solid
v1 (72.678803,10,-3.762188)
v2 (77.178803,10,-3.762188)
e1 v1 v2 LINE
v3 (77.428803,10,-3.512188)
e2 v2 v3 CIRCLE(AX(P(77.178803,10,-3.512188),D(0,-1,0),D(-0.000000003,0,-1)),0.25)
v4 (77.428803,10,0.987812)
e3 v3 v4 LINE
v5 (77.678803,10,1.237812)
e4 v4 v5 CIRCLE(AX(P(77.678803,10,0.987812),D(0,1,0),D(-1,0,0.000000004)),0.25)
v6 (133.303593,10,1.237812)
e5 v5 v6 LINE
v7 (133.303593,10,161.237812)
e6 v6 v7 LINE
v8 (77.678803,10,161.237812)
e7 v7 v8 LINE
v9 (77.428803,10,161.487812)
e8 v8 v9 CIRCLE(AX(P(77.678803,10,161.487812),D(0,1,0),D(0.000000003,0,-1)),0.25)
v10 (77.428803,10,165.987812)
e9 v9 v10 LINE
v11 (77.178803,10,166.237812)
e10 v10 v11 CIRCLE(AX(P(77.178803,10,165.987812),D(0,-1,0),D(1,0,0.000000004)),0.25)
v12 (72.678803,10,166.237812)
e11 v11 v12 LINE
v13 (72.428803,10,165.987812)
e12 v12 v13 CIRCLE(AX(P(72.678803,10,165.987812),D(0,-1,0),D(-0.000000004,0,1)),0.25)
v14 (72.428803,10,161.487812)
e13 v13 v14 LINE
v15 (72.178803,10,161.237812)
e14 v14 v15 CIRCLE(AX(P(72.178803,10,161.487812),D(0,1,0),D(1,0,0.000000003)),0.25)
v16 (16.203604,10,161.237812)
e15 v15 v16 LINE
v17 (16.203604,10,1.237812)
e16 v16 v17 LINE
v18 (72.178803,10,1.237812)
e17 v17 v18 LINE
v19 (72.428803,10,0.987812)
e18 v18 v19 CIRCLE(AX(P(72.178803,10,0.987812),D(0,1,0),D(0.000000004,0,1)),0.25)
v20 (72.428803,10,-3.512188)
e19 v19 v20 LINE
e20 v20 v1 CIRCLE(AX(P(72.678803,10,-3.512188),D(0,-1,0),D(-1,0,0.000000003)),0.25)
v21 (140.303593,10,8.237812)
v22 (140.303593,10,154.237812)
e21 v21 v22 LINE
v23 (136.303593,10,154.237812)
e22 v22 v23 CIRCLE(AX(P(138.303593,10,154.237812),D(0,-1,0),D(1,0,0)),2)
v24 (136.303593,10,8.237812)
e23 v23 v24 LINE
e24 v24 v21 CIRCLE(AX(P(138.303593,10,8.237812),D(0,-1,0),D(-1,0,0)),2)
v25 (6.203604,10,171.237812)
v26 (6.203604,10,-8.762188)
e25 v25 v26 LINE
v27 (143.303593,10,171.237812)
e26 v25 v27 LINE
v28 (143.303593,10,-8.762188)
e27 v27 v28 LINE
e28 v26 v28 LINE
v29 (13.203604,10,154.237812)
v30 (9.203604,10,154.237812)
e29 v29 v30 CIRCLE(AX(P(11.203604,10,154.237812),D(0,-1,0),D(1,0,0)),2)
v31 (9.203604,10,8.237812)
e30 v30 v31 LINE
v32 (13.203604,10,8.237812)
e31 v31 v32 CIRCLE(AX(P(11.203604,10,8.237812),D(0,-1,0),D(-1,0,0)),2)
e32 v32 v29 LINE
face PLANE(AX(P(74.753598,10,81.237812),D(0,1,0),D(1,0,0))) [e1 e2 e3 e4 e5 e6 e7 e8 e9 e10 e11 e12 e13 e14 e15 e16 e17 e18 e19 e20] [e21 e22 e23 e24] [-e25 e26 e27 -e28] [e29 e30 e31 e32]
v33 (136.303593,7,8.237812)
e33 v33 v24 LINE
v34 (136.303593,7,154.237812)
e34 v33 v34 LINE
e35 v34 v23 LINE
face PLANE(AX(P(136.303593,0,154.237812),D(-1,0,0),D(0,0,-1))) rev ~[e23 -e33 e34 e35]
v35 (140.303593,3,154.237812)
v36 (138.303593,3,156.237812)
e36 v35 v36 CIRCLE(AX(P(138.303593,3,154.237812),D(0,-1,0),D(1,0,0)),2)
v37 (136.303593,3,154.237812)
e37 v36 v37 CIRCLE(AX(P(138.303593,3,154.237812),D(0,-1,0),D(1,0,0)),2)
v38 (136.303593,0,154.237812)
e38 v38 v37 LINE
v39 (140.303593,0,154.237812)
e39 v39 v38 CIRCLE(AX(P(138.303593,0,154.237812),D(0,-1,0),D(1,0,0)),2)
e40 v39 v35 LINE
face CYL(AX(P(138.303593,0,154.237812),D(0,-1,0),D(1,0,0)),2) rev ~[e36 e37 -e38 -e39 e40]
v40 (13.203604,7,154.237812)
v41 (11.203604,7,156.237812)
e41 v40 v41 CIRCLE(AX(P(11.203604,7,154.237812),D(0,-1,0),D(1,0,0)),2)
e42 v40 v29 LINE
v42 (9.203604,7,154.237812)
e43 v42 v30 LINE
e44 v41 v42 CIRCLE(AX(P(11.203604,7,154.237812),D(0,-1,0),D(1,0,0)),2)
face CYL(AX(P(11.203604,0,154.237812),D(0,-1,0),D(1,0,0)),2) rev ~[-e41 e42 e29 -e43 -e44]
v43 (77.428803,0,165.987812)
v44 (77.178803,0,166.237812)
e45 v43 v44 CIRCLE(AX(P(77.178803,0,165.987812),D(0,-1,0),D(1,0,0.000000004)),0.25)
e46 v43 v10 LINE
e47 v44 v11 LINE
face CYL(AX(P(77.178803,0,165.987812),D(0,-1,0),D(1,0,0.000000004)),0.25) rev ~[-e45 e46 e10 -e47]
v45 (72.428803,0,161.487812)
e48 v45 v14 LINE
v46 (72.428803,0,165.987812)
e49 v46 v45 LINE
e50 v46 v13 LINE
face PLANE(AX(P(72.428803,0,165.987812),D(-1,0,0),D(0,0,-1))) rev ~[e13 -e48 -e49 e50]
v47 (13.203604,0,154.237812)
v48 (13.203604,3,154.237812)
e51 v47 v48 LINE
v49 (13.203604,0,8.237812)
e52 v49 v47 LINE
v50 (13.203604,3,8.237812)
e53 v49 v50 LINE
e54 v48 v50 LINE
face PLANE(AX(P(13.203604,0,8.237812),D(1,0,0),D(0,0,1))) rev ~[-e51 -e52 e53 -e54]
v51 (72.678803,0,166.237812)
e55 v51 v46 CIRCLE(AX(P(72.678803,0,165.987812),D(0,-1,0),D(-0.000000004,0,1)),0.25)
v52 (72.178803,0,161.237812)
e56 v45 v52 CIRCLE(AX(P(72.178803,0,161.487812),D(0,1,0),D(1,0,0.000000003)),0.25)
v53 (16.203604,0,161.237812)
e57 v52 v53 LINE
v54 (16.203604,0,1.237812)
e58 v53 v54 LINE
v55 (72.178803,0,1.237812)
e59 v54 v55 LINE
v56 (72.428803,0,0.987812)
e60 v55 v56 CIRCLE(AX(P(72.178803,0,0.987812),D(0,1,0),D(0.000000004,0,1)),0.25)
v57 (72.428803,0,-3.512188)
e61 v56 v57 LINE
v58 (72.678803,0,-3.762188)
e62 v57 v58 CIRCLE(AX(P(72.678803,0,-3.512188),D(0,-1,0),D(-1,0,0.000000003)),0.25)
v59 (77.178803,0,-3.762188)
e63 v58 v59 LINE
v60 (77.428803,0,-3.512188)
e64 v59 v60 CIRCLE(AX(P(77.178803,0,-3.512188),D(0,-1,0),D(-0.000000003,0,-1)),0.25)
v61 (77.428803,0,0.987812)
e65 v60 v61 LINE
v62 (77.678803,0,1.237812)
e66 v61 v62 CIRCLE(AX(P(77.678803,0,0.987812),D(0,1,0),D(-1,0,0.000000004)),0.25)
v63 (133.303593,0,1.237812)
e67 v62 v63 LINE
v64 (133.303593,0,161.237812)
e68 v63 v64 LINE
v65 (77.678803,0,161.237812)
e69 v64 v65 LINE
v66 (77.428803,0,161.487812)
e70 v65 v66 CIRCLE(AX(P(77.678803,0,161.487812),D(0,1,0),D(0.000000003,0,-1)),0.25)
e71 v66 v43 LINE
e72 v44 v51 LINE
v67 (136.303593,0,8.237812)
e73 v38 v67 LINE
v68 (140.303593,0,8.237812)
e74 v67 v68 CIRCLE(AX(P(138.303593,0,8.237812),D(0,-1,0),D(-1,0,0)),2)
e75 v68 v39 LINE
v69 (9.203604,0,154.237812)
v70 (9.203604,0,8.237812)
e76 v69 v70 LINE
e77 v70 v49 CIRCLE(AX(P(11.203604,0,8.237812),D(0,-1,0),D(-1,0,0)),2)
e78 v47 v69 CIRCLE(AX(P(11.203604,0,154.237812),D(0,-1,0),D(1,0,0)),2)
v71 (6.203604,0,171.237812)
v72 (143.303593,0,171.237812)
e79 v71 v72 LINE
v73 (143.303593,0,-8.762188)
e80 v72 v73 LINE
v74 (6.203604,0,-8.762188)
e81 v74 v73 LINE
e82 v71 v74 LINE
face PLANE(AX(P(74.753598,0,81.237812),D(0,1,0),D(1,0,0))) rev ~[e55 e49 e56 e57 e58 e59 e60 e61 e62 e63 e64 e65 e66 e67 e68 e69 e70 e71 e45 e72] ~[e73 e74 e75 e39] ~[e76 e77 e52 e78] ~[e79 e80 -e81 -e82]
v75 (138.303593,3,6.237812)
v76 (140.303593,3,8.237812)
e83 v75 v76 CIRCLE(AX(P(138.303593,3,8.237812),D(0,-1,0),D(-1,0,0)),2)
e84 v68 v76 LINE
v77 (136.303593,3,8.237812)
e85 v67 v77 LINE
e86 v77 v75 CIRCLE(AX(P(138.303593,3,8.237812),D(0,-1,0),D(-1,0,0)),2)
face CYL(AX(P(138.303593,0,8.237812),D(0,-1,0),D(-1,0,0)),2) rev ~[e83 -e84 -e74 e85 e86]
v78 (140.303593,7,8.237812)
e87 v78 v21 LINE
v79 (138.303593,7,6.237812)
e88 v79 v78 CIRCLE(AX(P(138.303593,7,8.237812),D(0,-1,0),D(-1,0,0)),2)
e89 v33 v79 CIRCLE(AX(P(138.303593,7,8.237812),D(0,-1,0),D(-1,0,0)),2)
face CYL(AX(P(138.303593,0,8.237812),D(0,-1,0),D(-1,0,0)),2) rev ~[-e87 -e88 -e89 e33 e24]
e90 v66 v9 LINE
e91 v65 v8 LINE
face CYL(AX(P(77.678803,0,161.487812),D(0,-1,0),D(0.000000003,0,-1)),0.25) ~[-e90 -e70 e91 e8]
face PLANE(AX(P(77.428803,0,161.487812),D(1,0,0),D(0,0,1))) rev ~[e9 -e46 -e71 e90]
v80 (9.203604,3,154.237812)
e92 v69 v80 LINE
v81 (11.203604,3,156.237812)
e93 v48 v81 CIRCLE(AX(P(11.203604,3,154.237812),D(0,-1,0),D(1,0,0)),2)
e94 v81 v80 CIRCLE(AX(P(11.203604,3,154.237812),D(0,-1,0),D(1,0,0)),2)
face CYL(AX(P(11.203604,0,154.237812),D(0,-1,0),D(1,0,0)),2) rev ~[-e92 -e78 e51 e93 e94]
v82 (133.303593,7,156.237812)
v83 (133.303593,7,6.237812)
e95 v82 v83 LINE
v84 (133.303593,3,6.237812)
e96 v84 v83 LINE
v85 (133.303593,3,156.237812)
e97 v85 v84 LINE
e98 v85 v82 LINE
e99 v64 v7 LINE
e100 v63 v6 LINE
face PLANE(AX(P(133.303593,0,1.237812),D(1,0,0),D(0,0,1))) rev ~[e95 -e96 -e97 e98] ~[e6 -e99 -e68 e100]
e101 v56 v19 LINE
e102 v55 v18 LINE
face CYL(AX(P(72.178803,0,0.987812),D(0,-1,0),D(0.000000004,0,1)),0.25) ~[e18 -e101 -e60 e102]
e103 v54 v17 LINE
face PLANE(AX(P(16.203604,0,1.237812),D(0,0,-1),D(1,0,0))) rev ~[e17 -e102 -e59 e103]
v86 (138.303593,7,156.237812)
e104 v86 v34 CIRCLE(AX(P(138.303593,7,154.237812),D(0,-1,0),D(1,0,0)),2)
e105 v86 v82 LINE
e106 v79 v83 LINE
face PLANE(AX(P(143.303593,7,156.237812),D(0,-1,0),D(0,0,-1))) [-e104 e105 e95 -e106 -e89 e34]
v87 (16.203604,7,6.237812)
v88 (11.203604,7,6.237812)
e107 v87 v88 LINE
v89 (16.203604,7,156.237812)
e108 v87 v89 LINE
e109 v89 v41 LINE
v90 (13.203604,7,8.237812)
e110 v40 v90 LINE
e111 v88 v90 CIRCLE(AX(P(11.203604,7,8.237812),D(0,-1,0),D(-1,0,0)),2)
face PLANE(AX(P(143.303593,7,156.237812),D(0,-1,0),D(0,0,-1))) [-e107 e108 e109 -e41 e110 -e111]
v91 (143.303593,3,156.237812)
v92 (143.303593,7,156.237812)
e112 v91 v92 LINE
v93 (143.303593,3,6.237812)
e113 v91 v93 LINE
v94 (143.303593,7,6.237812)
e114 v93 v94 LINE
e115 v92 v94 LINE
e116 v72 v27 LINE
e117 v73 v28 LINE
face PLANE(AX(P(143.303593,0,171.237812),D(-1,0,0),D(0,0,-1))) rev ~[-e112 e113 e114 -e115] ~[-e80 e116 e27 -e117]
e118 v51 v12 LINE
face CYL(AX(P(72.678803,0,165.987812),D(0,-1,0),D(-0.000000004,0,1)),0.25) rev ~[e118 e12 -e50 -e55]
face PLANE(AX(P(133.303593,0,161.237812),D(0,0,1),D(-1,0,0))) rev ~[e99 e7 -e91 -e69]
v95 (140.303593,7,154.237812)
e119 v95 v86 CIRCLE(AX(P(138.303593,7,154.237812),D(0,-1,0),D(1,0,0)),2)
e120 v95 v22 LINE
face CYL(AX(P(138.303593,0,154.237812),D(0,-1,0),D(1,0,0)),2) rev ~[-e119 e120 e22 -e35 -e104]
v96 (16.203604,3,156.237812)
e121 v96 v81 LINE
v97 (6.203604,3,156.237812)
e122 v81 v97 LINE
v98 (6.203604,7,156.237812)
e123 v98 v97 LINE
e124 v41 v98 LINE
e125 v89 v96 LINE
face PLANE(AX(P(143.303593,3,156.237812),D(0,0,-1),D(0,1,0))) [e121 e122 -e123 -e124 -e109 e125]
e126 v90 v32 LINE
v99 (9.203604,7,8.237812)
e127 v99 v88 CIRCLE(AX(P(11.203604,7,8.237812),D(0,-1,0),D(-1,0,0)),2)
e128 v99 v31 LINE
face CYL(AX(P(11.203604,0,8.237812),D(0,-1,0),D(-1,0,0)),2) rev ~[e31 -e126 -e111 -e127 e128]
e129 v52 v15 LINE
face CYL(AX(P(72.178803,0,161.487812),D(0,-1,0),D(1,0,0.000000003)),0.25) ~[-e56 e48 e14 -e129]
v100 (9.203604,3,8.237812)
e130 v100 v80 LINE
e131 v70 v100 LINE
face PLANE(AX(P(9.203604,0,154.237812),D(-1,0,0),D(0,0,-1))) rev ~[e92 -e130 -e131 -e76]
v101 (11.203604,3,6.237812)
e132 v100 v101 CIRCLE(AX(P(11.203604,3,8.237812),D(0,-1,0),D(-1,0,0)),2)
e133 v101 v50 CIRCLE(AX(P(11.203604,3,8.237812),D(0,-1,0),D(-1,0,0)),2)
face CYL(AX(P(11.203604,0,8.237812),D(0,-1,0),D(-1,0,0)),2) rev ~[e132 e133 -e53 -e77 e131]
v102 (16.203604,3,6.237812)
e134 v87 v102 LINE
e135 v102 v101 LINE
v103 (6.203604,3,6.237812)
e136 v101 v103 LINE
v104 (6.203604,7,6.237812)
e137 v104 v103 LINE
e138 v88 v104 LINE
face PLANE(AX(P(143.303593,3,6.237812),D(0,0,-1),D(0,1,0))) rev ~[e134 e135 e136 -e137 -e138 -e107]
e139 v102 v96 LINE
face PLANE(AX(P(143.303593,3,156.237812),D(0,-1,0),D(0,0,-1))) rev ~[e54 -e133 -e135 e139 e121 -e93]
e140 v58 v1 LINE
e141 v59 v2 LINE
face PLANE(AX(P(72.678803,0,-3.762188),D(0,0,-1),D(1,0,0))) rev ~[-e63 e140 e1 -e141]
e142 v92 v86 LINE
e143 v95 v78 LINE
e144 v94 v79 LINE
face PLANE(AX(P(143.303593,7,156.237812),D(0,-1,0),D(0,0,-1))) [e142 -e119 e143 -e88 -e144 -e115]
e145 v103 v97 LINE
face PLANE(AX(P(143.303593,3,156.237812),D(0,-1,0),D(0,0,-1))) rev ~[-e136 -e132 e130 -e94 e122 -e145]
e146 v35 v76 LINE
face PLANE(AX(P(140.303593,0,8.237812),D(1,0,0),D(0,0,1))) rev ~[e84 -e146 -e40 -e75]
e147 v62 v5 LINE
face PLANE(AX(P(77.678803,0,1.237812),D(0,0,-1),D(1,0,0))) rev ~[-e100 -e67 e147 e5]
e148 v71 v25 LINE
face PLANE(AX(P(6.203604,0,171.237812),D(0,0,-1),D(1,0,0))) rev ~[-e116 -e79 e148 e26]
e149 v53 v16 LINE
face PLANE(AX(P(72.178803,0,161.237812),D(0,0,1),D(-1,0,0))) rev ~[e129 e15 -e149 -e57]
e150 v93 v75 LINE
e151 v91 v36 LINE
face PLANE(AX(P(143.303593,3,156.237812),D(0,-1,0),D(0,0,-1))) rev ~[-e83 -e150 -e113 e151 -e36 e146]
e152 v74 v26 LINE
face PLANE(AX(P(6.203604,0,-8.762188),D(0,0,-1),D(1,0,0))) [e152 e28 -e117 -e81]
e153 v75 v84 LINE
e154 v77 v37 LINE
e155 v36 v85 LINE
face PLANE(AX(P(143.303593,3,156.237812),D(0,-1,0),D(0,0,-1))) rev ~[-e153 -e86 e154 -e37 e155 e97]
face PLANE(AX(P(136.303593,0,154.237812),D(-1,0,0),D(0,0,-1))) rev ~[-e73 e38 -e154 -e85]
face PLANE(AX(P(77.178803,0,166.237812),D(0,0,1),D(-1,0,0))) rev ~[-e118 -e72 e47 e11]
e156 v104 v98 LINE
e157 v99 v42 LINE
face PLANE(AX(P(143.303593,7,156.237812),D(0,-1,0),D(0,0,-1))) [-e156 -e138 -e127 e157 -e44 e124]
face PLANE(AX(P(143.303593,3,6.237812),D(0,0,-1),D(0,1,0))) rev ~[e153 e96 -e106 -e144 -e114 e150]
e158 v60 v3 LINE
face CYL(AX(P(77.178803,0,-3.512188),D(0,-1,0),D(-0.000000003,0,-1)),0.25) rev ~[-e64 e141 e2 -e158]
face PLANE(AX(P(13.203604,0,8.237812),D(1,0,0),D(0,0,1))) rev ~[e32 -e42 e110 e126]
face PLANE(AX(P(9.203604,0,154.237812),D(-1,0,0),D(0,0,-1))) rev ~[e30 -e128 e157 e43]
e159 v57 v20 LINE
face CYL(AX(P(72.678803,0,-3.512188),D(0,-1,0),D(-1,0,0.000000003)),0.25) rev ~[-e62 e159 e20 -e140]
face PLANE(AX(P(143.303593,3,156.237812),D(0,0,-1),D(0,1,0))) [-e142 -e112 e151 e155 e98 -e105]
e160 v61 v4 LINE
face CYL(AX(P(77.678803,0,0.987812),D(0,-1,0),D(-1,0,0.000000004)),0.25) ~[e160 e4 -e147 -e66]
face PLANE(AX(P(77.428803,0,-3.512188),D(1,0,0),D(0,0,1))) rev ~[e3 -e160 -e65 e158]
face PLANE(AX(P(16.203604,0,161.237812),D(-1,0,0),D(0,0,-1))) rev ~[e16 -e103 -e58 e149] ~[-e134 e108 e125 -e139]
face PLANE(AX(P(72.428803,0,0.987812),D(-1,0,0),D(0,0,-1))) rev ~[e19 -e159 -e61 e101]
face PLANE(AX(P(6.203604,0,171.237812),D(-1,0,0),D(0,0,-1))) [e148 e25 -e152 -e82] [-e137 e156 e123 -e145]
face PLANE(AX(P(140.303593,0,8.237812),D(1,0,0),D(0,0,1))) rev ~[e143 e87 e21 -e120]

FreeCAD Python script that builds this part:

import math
import FreeCAD as App
import Part
import Sketcher


def add_polygon(sketch, points):
    """Adds a closed chain of lines whose ends are joined by coincident constraints."""
    first, n = sketch.GeometryCount, len(points)
    for a, b in zip(points, points[1:] + points[:1]):
        sketch.addGeometry(Part.LineSegment(App.Vector(*a, 0), App.Vector(*b, 0)), False)
    for i in range(n):
        sketch.addConstraint(Sketcher.Constraint("Coincident", first + i, 2, first + (i + 1) % n, 1))

doc = App.newDocument("Part")
body = doc.addObject("PartDesign::Body", "Body")

sketch1 = body.newObject("Sketcher::SketchObject", "Sketch")
sketch1.AttachmentSupport = (doc.getObject("XZ_Plane"), [""])
sketch1.MapMode = "FlatFace"
add_polygon(sketch1, [(6.2, -8.76), (6.2, 171.24), (143.3, 171.24), (143.3, -8.76)])
sketch1.addGeometry(Part.ArcOfCircle(Part.Circle(App.Vector(11.2, 154.24, 0), App.Vector(0, 0, 1), 2), math.radians(0), math.radians(180)), False)
sketch1.addGeometry(Part.LineSegment(App.Vector(9.2, 154.24, 0), App.Vector(9.2, 8.24, 0)), False)
sketch1.addGeometry(Part.ArcOfCircle(Part.Circle(App.Vector(11.2, 8.24, 0), App.Vector(0, 0, 1), 2), math.radians(180), math.radians(360)), False)
sketch1.addGeometry(Part.LineSegment(App.Vector(13.2, 8.24, 0), App.Vector(13.2, 154.24, 0)), False)
sketch1.addGeometry(Part.LineSegment(App.Vector(16.2, 161.24, 0), App.Vector(16.2, 1.24, 0)), False)
sketch1.addGeometry(Part.LineSegment(App.Vector(16.2, 1.24, 0), App.Vector(72.18, 1.24, 0)), False)
sketch1.addGeometry(Part.ArcOfCircle(Part.Circle(App.Vector(72.18, 0.99, 0), App.Vector(0, 0, 1), 0.25), math.radians(0), math.radians(90)), False)
sketch1.addGeometry(Part.LineSegment(App.Vector(72.43, 0.99, 0), App.Vector(72.43, -3.51, 0)), False)
sketch1.addGeometry(Part.ArcOfCircle(Part.Circle(App.Vector(72.68, -3.51, 0), App.Vector(0, 0, 1), 0.25), math.radians(180), math.radians(270)), False)
sketch1.addGeometry(Part.LineSegment(App.Vector(72.68, -3.76, 0), App.Vector(77.18, -3.76, 0)), False)
sketch1.addGeometry(Part.ArcOfCircle(Part.Circle(App.Vector(77.18, -3.51, 0), App.Vector(0, 0, 1), 0.25), math.radians(-90), math.radians(0)), False)
sketch1.addGeometry(Part.LineSegment(App.Vector(77.43, -3.51, 0), App.Vector(77.43, 0.99, 0)), False)
sketch1.addGeometry(Part.ArcOfCircle(Part.Circle(App.Vector(77.68, 0.99, 0), App.Vector(0, 0, 1), 0.25), math.radians(90), math.radians(180)), False)
sketch1.addGeometry(Part.LineSegment(App.Vector(77.68, 1.24, 0), App.Vector(133.3, 1.24, 0)), False)
sketch1.addGeometry(Part.LineSegment(App.Vector(133.3, 1.24, 0), App.Vector(133.3, 161.24, 0)), False)
sketch1.addGeometry(Part.LineSegment(App.Vector(133.3, 161.24, 0), App.Vector(77.68, 161.24, 0)), False)
sketch1.addGeometry(Part.ArcOfCircle(Part.Circle(App.Vector(77.68, 161.49, 0), App.Vector(0, 0, 1), 0.25), math.radians(180), math.radians(270)), False)
sketch1.addGeometry(Part.LineSegment(App.Vector(77.43, 161.49, 0), App.Vector(77.43, 165.99, 0)), False)
sketch1.addGeometry(Part.ArcOfCircle(Part.Circle(App.Vector(77.18, 165.99, 0), App.Vector(0, 0, 1), 0.25), math.radians(0), math.radians(90)), False)
sketch1.addGeometry(Part.LineSegment(App.Vector(77.18, 166.24, 0), App.Vector(72.68, 166.24, 0)), False)
sketch1.addGeometry(Part.ArcOfCircle(Part.Circle(App.Vector(72.68, 165.99, 0), App.Vector(0, 0, 1), 0.25), math.radians(90), math.radians(180)), False)
sketch1.addGeometry(Part.LineSegment(App.Vector(72.43, 165.99, 0), App.Vector(72.43, 161.49, 0)), False)
sketch1.addGeometry(Part.ArcOfCircle(Part.Circle(App.Vector(72.18, 161.49, 0), App.Vector(0, 0, 1), 0.25), math.radians(-90), math.radians(0)), False)
sketch1.addGeometry(Part.LineSegment(App.Vector(72.18, 161.24, 0), App.Vector(16.2, 161.24, 0)), False)
sketch1.addGeometry(Part.ArcOfCircle(Part.Circle(App.Vector(138.3, 154.24, 0), App.Vector(0, 0, 1), 2), math.radians(0), math.radians(180)), False)
sketch1.addGeometry(Part.LineSegment(App.Vector(136.3, 154.24, 0), App.Vector(136.3, 8.24, 0)), False)
sketch1.addGeometry(Part.ArcOfCircle(Part.Circle(App.Vector(138.3, 8.24, 0), App.Vector(0, 0, 1), 2), math.radians(180), math.radians(360)), False)
sketch1.addGeometry(Part.LineSegment(App.Vector(140.3, 8.24, 0), App.Vector(140.3, 154.24, 0)), False)
sketch1.addConstraint([
    Sketcher.Constraint("Tangent", 4, 2, 5, 1),
    Sketcher.Constraint("Tangent", 5, 2, 6, 1),
    Sketcher.Constraint("Tangent", 6, 2, 7, 1),
    Sketcher.Constraint("Tangent", 7, 2, 4, 1),
    Sketcher.Constraint("Coincident", 8, 2, 9, 1),
    Sketcher.Constraint("Tangent", 9, 2, 10, 2),
    Sketcher.Constraint("Tangent", 10, 1, 11, 1),
    Sketcher.Constraint("Tangent", 11, 2, 12, 1),
    Sketcher.Constraint("Tangent", 12, 2, 13, 1),
    Sketcher.Constraint("Tangent", 13, 2, 14, 1),
    Sketcher.Constraint("Tangent", 14, 2, 15, 1),
    Sketcher.Constraint("Tangent", 15, 2, 16, 2),
    Sketcher.Constraint("Tangent", 16, 1, 17, 1),
    Sketcher.Constraint("Coincident", 17, 2, 18, 1),
    Sketcher.Constraint("Coincident", 18, 2, 19, 1),
    Sketcher.Constraint("Tangent", 19, 2, 20, 2),
    Sketcher.Constraint("Tangent", 20, 1, 21, 1),
    Sketcher.Constraint("Tangent", 21, 2, 22, 1),
    Sketcher.Constraint("Tangent", 22, 2, 23, 1),
    Sketcher.Constraint("Tangent", 23, 2, 24, 1),
    Sketcher.Constraint("Tangent", 24, 2, 25, 1),
    Sketcher.Constraint("Tangent", 25, 2, 26, 2),
    Sketcher.Constraint("Tangent", 26, 1, 27, 1),
    Sketcher.Constraint("Coincident", 27, 2, 8, 1),
    Sketcher.Constraint("Tangent", 28, 2, 29, 1),
    Sketcher.Constraint("Tangent", 29, 2, 30, 1),
    Sketcher.Constraint("Tangent", 30, 2, 31, 1),
    Sketcher.Constraint("Tangent", 31, 2, 28, 1),
    Sketcher.Constraint("Vertical", 0),
    Sketcher.Constraint("Horizontal", 1),
    Sketcher.Constraint("Vertical", 2),
    Sketcher.Constraint("Horizontal", 3),
    Sketcher.Constraint("Vertical", 5),
    Sketcher.Constraint("Vertical", 7),
    Sketcher.Constraint("Vertical", 8),
    Sketcher.Constraint("Horizontal", 9),
    Sketcher.Constraint("Vertical", 11),
    Sketcher.Constraint("Horizontal", 13),
    Sketcher.Constraint("Vertical", 15),
    Sketcher.Constraint("Horizontal", 17),
    Sketcher.Constraint("Vertical", 18),
    Sketcher.Constraint("Horizontal", 19),
    Sketcher.Constraint("Vertical", 21),
    Sketcher.Constraint("Horizontal", 23),
    Sketcher.Constraint("Vertical", 25),
    Sketcher.Constraint("Horizontal", 27),
    Sketcher.Constraint("Vertical", 29),
    Sketcher.Constraint("Vertical", 31),
    Sketcher.Constraint("Equal", 10, 12),
    Sketcher.Constraint("Equal", 12, 14),
    Sketcher.Constraint("Equal", 14, 16),
    Sketcher.Constraint("Equal", 16, 20),
    Sketcher.Constraint("Equal", 20, 22),
    Sketcher.Constraint("Equal", 22, 24),
    Sketcher.Constraint("Equal", 24, 26),
    Sketcher.Constraint("Equal", 6, 28),
    Sketcher.Constraint("Horizontal", 10, 3, 16, 3),
    Sketcher.Constraint("Horizontal", 20, 3, 26, 3),
    Sketcher.Constraint("Horizontal", 4, 3, 28, 3),
    Sketcher.Constraint("Horizontal", 6, 3, 30, 3),
    Sketcher.Constraint("Vertical", 16, 3, 20, 3),
    Sketcher.Constraint("Vertical", 12, 3, 24, 3),
    Sketcher.Constraint("Equal", 23, 11),
    Sketcher.Constraint("Equal", 15, 21),
    Sketcher.Constraint("Radius", 4, 2.0),
    Sketcher.Constraint("DistanceY", 0, 1, 0, 2, 180.0),
    Sketcher.Constraint("DistanceY", 5, 2, 5, 1, 146.0),
    Sketcher.Constraint("DistanceY", 8, 2, 8, 1, 160.0),
    Sketcher.Constraint("Radius", 10, 0.25),
    Sketcher.Constraint("DistanceX", 13, 1, 13, 2, 4.5),
    Sketcher.Constraint("DistanceX", 0, 2, 4, 3, 5.0),
    Sketcher.Constraint("DistanceY", 4, 3, 0, 2, 17.0),
    Sketcher.Constraint("DistanceX", 28, 3, 1, 2, 5.0),
    Sketcher.Constraint("DistanceX", 6, 2, 8, 2, 3.0),
    Sketcher.Constraint("DistanceY", 8, 2, 6, 2, 7.0),
    Sketcher.Constraint("DistanceX", 17, 2, 30, 3, 5.0),
    Sketcher.Constraint("DistanceX", 9, 1, 9, 2, 55.9752),
    Sketcher.Constraint("DistanceX", 1, 1, 1, 2, 137.099989),
    Sketcher.Constraint("DistanceX", -1, 1, 4, 3, 11.203604),
    Sketcher.Constraint("DistanceY", -1, 1, 4, 3, 154.237812),
])
pad1 = body.newObject("PartDesign::Pad", "Pad")
pad1.Profile = sketch1
pad1.Length = 10
pad1.Reversed = True

sketch2 = body.newObject("Sketcher::SketchObject", "Sketch001")
sketch2.AttachmentSupport = (doc.getObject("YZ_Plane"), [""])
sketch2.MapMode = "FlatFace"
sketch2.AttachmentOffset = App.Placement(App.Vector(0, 0, 143.303593), App.Rotation())
add_polygon(sketch2, [(7, 156.2), (3, 156.2), (3, 6.2), (7, 6.2)])
sketch2.addConstraint([
    Sketcher.Constraint("Horizontal", 0),
    Sketcher.Constraint("Vertical", 1),
    Sketcher.Constraint("Horizontal", 2),
    Sketcher.Constraint("Vertical", 3),
    Sketcher.Constraint("DistanceX", 0, 2, 0, 1, 4.0),
    Sketcher.Constraint("DistanceY", 1, 2, 1, 1, 150.0),
    Sketcher.Constraint("DistanceX", -1, 1, 0, 2, 3.0),
    Sketcher.Constraint("DistanceY", -1, 1, 0, 2, 156.237812),
])
pocket1 = body.newObject("PartDesign::Pocket", "Pocket")
pocket1.Profile = sketch2
pocket1.Length = 160

doc.recompute()
